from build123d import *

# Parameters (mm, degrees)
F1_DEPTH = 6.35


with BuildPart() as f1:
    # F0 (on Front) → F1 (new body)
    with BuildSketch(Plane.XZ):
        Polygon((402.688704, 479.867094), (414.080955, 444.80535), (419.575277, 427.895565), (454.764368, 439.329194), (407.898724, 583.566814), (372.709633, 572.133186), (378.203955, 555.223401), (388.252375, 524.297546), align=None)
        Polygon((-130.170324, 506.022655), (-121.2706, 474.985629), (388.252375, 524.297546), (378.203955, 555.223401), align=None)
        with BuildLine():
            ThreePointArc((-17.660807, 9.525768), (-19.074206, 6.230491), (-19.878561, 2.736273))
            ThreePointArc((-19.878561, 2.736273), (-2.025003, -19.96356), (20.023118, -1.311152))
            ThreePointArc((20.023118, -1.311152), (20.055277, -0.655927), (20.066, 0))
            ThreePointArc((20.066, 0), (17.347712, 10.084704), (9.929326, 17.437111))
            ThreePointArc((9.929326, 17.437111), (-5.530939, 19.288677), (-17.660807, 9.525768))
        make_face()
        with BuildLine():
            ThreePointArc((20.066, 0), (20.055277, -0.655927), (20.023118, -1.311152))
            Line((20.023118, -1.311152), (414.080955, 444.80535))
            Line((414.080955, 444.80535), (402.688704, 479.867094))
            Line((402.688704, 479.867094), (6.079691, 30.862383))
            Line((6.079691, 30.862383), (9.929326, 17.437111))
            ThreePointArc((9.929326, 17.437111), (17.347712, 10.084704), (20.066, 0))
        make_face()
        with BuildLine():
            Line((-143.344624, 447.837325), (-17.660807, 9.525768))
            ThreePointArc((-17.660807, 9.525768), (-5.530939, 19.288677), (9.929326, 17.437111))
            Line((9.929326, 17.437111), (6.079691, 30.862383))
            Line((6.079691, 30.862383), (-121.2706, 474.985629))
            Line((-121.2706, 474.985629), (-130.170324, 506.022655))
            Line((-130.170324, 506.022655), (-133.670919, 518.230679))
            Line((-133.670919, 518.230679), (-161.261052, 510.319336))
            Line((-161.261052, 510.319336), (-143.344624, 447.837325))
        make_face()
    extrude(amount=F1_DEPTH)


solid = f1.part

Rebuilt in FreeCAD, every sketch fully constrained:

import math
import FreeCAD as App
import Part
import Sketcher
from FreeCAD import Vector
Q = App.Units.Quantity

doc = App.newDocument("Part")
body = doc.addObject("PartDesign::Body", "Body")

sketch1 = body.newObject("Sketcher::SketchObject", "Sketch")
sketch1.AttachmentSupport = (doc.getObject("XZ_Plane"), [""])
sketch1.MapMode = "FlatFace"
sketch1.addGeometry(Part.LineSegment(Vector(414.080955, 444.80535, 0), Vector(419.575277, 427.895565, 0)), False)
sketch1.addGeometry(Part.LineSegment(Vector(419.575277, 427.895565, 0), Vector(454.764368, 439.329194, 0)), False)
sketch1.addGeometry(Part.LineSegment(Vector(454.764368, 439.329194, 0), Vector(407.898724, 583.566814, 0)), False)
sketch1.addGeometry(Part.LineSegment(Vector(407.898724, 583.566814, 0), Vector(372.709633, 572.133186, 0)), False)
sketch1.addGeometry(Part.LineSegment(Vector(372.709633, 572.133186, 0), Vector(378.203955, 555.223401, 0)), False)
sketch1.addGeometry(Part.LineSegment(Vector(378.203955, 555.223401, 0), Vector(-130.170324, 506.022655, 0)), False)
sketch1.addGeometry(Part.LineSegment(Vector(-130.170324, 506.022655, 0), Vector(-133.670919, 518.230679, 0)), False)
sketch1.addGeometry(Part.LineSegment(Vector(-133.670919, 518.230679, 0), Vector(-161.261052, 510.319336, 0)), False)
sketch1.addGeometry(Part.LineSegment(Vector(-161.261052, 510.319336, 0), Vector(-143.344624, 447.837325, 0)), False)
sketch1.addGeometry(Part.LineSegment(Vector(-143.344624, 447.837325, 0), Vector(-17.660807, 9.525768, 0)), False)
sketch1.addGeometry(Part.ArcOfCircle(Part.Circle(Vector(0.000023, -0.000009, 0), Vector(0, 0, 1), 20.066025), math.radians(151.65877), math.radians(172.162504)), False)
sketch1.addGeometry(Part.ArcOfCircle(Part.Circle(Vector(0, 0, 0), Vector(0, 0, 1), 20.066), math.radians(172.16252), math.radians(356.253511)), False)
sketch1.addGeometry(Part.LineSegment(Vector(20.023118, -1.311152, 0), Vector(414.080955, 444.80535, 0)), False)
sketch1.addGeometry(Part.LineSegment(Vector(-121.2706, 474.985629, 0), Vector(388.252375, 524.297546, 0)), False)
sketch1.addGeometry(Part.LineSegment(Vector(388.252375, 524.297546, 0), Vector(402.688704, 479.867094, 0)), False)
sketch1.addGeometry(Part.LineSegment(Vector(402.688704, 479.867094, 0), Vector(6.079691, 30.862383, 0)), False)
sketch1.addGeometry(Part.LineSegment(Vector(6.079691, 30.862383, 0), Vector(-121.2706, 474.985629, 0)), False)
sketch1.addConstraint(Sketcher.Constraint("Coincident", 0, 2, 1, 1))
sketch1.addConstraint(Sketcher.Constraint("Coincident", 1, 2, 2, 1))
sketch1.addConstraint(Sketcher.Constraint("Coincident", 2, 2, 3, 1))
sketch1.addConstraint(Sketcher.Constraint("Coincident", 3, 2, 4, 1))
sketch1.addConstraint(Sketcher.Constraint("Coincident", 4, 2, 5, 1))
sketch1.addConstraint(Sketcher.Constraint("Coincident", 5, 2, 6, 1))
sketch1.addConstraint(Sketcher.Constraint("Coincident", 6, 2, 7, 1))
sketch1.addConstraint(Sketcher.Constraint("Coincident", 7, 2, 8, 1))
sketch1.addConstraint(Sketcher.Constraint("Coincident", 8, 2, 9, 1))
sketch1.addConstraint(Sketcher.Constraint("Coincident", 9, 2, 10, 1))
sketch1.addConstraint(Sketcher.Constraint("Coincident", 10, 2, 11, 1))
sketch1.addConstraint(Sketcher.Constraint("Coincident", 11, 2, 12, 1))
sketch1.addConstraint(Sketcher.Constraint("Coincident", 12, 2, 0, 1))
sketch1.addConstraint(Sketcher.Constraint("Coincident", 13, 2, 14, 1))
sketch1.addConstraint(Sketcher.Constraint("Coincident", 14, 2, 15, 1))
sketch1.addConstraint(Sketcher.Constraint("Coincident", 15, 2, 16, 1))
sketch1.addConstraint(Sketcher.Constraint("Coincident", 16, 2, 13, 1))
sketch1.addConstraint(Sketcher.Constraint("Coincident", 11, 3, -1, 1))
sketch1.addConstraint(Sketcher.Constraint("Radius", 11, Q("0.79 in")))
sketch1.addConstraint(Sketcher.Constraint("Distance", 0, Q("0.7 in")))
sketch1.addConstraint(Sketcher.Constraint("Distance", 4, Q("0.7 in")))
sketch1.addConstraint(Sketcher.Constraint("Distance", 6, Q("0.5 in")))
sketch1.addConstraint(Sketcher.Constraint("Distance", 7, Q("1.13 in")))
sketch1.addConstraint(Sketcher.Constraint("DistanceX", -1, 1, 12, 2, Q("16.3023998 in")))
sketch1.addConstraint(Sketcher.Constraint("Radius", 10, 20.066025))
sketch1.addConstraint(Sketcher.Constraint("Distance", 1, 37.0))
sketch1.addConstraint(Sketcher.Constraint("Distance", 3, 37.0))
sketch1.addConstraint(Sketcher.Constraint("Distance", 8, 65.000001))
sketch1.addConstraint(Sketcher.Constraint("DistanceY", -1, 1, 4, 2, 555.223401))
sketch1.addConstraint(Sketcher.Constraint("DistanceX", 16, 2, -1, 1, 121.2706))
sketch1.addConstraint(Sketcher.Constraint("DistanceX", 10, 3, 2, 2, 407.898701))
sketch1.addConstraint(Sketcher.Constraint("DistanceX", 8, 2, 5, 2, 13.1743))
sketch1.addConstraint(Sketcher.Constraint("DistanceX", 4, 2, 12, 2, 35.877))
sketch1.addConstraint(Sketcher.Constraint("DistanceY", 1, 2, 14, 2, 40.5379))
sketch1.addConstraint(Sketcher.Constraint("Distance", 2, 151.660409))
sketch1.addConstraint(Sketcher.Constraint("Distance", 13, 511.903631))
sketch1.addConstraint(Sketcher.Constraint("Distance", 14, 46.716942))
sketch1.addConstraint(Sketcher.Constraint("Distance", 15, 599.08592))
sketch1.addConstraint(Sketcher.Constraint("DistanceX", -1, 1, 1, 2, 454.764368))
sketch1.addConstraint(Sketcher.Constraint("DistanceX", 6, 2, -1, 1, 133.670919))
sketch1.addConstraint(Sketcher.Constraint("DistanceY", -1, 1, 6, 2, 518.230679))
sketch1.addConstraint(Sketcher.Constraint("DistanceX", 7, 2, -1, 1, 161.261052))
sketch1.addConstraint(Sketcher.Constraint("DistanceX", 10, 2, -1, 1, 19.878561))
sketch1.addConstraint(Sketcher.Constraint("DistanceY", 11, 2, -1, 1, 1.311152))
sketch1.addConstraint(Sketcher.Constraint("DistanceY", -1, 1, 12, 2, 444.80535))
sketch1.addConstraint(Sketcher.Constraint("DistanceX", -1, 1, 15, 2, 6.079691))
sketch1.addConstraint(Sketcher.Constraint("DistanceY", -1, 1, 16, 2, 474.985629))
sketch1.addConstraint(Sketcher.Constraint("DistanceX", 0, 2, 1, 2, 35.189091))
sketch1.addConstraint(Sketcher.Constraint("DistanceY", 1, 2, 2, 2, 144.23762))
sketch1.addConstraint(Sketcher.Constraint("DistanceY", 5, 2, 3, 2, 66.110531))
sketch1.addConstraint(Sketcher.Constraint("DistanceX", 9, 2, 10, 3, 17.66083))
sketch1.addConstraint(Sketcher.Constraint("DistanceX", 4, 2, 13, 2, 10.04842))
pad1 = body.newObject("PartDesign::Pad", "Pad")
pad1.Profile = sketch1
pad1.Length = Q("0.25 in")

doc.recompute()
